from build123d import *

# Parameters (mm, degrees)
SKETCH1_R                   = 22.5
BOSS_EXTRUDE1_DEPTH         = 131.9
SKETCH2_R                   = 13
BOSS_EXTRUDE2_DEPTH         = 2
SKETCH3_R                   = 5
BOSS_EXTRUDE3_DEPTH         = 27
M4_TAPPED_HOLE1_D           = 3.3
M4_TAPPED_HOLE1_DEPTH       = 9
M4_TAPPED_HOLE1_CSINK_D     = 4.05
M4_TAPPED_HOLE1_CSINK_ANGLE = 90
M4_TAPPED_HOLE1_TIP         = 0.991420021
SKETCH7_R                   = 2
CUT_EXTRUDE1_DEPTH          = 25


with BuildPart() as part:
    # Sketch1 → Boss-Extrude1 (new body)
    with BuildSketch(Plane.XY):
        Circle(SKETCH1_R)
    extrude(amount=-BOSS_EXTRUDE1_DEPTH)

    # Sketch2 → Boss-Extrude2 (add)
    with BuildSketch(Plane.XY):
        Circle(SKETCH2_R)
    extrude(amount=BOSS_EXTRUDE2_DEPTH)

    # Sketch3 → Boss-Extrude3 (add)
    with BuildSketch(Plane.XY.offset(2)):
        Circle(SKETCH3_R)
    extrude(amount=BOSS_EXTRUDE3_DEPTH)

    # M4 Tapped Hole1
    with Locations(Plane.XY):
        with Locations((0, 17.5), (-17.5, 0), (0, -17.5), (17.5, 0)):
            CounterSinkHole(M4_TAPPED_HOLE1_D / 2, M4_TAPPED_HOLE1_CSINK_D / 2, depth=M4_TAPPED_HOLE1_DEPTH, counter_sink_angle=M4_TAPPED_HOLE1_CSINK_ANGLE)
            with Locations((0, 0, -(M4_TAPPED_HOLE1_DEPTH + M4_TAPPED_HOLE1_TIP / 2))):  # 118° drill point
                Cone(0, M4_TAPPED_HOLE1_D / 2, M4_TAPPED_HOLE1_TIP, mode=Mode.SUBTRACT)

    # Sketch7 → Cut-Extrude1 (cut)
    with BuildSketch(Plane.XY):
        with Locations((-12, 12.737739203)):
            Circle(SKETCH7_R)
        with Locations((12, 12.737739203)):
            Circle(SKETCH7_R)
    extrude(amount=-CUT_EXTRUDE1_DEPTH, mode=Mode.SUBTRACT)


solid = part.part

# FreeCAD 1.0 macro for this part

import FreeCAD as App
import Part
import Sketcher

doc = App.newDocument("Part")
params = doc.addObject("Spreadsheet::Sheet", "Params")
for row, (alias, value) in enumerate([
    ("sketch1_diameter", "45 mm"),
    ("pad1_length", "131.9 mm"),
    ("sketch2_diameter", "26 mm"),
    ("pad2_length", "2 mm"),
    ("sketch3_diameter", "10 mm"),
    ("pad3_length", "27 mm"),
    ("sketch4_diameter", "3.3 mm"),
    ("hole_diameter", "3.3 mm"),
    ("hole_depth", "9 mm"),
    ("hole_csink_diameter", "4.05 mm"),
    ("sketch5_diameter", "4 mm"),
    ("pocket1_length", "25 mm"),
], start=1):
    params.set(f"A{row}", alias)
    params.set(f"B{row}", "=" + value)
    params.setAlias(f"B{row}", alias)

body = doc.addObject("PartDesign::Body", "Body")

# Sketch on XY plane
sketch1 = body.newObject("Sketcher::SketchObject", "Sketch")
sketch1.AttachmentSupport = (doc.getObject("XY_Plane"), [""])
sketch1.MapMode = "FlatFace"
sketch1.addGeometry(Part.Circle(App.Vector(0, 0, 0), App.Vector(0, 0, 1), 22), False)
sketch1.addConstraint([
    Sketcher.Constraint("Coincident", 0, 3, -1, 1),
    Sketcher.Constraint("Diameter", 0, 45.0),
])
sketch1.setExpression("Constraints[1]", "Params.sketch1_diameter")
pad1 = body.newObject("PartDesign::Pad", "Pad")
pad1.Profile = sketch1
pad1.setExpression("Length", "Params.pad1_length")
pad1.Reversed = True

# Sketch on XY plane
sketch2 = body.newObject("Sketcher::SketchObject", "Sketch001")
sketch2.AttachmentSupport = (doc.getObject("XY_Plane"), [""])
sketch2.MapMode = "FlatFace"
sketch2.addGeometry(Part.Circle(App.Vector(0, 0, 0), App.Vector(0, 0, 1), 13), False)
sketch2.addConstraint([
    Sketcher.Constraint("Coincident", 0, 3, -1, 1),
    Sketcher.Constraint("Diameter", 0, 26.0),
])
sketch2.setExpression("Constraints[1]", "Params.sketch2_diameter")
pad2 = body.newObject("PartDesign::Pad", "Pad001")
pad2.Profile = sketch2
pad2.setExpression("Length", "Params.pad2_length")

# Sketch on XY plane
sketch3 = body.newObject("Sketcher::SketchObject", "Sketch002")
sketch3.AttachmentSupport = (doc.getObject("XY_Plane"), [""])
sketch3.MapMode = "FlatFace"
sketch3.AttachmentOffset = App.Placement(App.Vector(0, 0, 2), App.Rotation())
sketch3.addGeometry(Part.Circle(App.Vector(0, 0, 0), App.Vector(0, 0, 1), 5), False)
sketch3.addConstraint([
    Sketcher.Constraint("Coincident", 0, 3, -1, 1),
    Sketcher.Constraint("Diameter", 0, 10.0),
])
sketch3.setExpression("Constraints[1]", "Params.sketch3_diameter")
pad3 = body.newObject("PartDesign::Pad", "Pad002")
pad3.Profile = sketch3
pad3.setExpression("Length", "Params.pad3_length")

# Sketch on XY plane
sketch4 = body.newObject("Sketcher::SketchObject", "Sketch003")
sketch4.AttachmentSupport = (doc.getObject("XY_Plane"), [""])
sketch4.MapMode = "FlatFace"
sketch4.addGeometry([
    Part.Circle(App.Vector(0, 17.5, 0), App.Vector(0, 0, 1), 1.6),
    Part.Circle(App.Vector(-17.5, 0, 0), App.Vector(0, 0, 1), 1.6),
    Part.Circle(App.Vector(0, -17.5, 0), App.Vector(0, 0, 1), 1.6),
    Part.Circle(App.Vector(17.5, 0, 0), App.Vector(0, 0, 1), 1.6),
], False)
sketch4.addConstraint([
    Sketcher.Constraint("Equal", 0, 1),
    Sketcher.Constraint("Equal", 1, 2),
    Sketcher.Constraint("Equal", 2, 3),
    Sketcher.Constraint("Symmetric", 0, 3, 2, 3, -1, 1),
    Sketcher.Constraint("Symmetric", 1, 3, 3, 3, -1, 1),
    Sketcher.Constraint("PointOnObject", 0, 3, -2),
    Sketcher.Constraint("PointOnObject", 1, 3, -1),
    Sketcher.Constraint("Diameter", 0, 3.3),
    Sketcher.Constraint("DistanceY", 2, 3, 0, 3, 35.0),
    Sketcher.Constraint("DistanceX", 1, 3, 3, 3, 35.0),
])
sketch4.setExpression("Constraints[7]", "Params.sketch4_diameter")
doc.recompute()
hole = body.newObject("PartDesign::Hole", "Hole")
hole.Profile = sketch4
hole.ThreadType = "None"
hole.setExpression("Diameter", "Params.hole_diameter")
hole.DepthType = "Dimension"
hole.setExpression("Depth", "Params.hole_depth")
hole.DrillPoint = "Angled"
hole.DrillPointAngle = 118
hole.HoleCutType = "Countersink"
hole.setExpression("HoleCutDiameter", "Params.hole_csink_diameter")
hole.HoleCutCountersinkAngle = 90

# Sketch on XY plane
sketch5 = body.newObject("Sketcher::SketchObject", "Sketch004")
sketch5.AttachmentSupport = (doc.getObject("XY_Plane"), [""])
sketch5.MapMode = "FlatFace"
sketch5.addGeometry([
    Part.Circle(App.Vector(-12, 12.7, 0), App.Vector(0, 0, 1), 2),
    Part.Circle(App.Vector(12, 12.7, 0), App.Vector(0, 0, 1), 2),
], False)
sketch5.addConstraint([
    Sketcher.Constraint("Equal", 0, 1),
    Sketcher.Constraint("Symmetric", 0, 3, 1, 3, -2),
    Sketcher.Constraint("Diameter", 0, 4.0),
    Sketcher.Constraint("DistanceX", 0, 3, -1, 1, 12.0),
    Sketcher.Constraint("DistanceY", -1, 1, 0, 3, 12.737739),
])
sketch5.setExpression("Constraints[2]", "Params.sketch5_diameter")
pocket1 = body.newObject("PartDesign::Pocket", "Pocket")
pocket1.Profile = sketch5
pocket1.setExpression("Length", "Params.pocket1_length")

doc.recompute()
